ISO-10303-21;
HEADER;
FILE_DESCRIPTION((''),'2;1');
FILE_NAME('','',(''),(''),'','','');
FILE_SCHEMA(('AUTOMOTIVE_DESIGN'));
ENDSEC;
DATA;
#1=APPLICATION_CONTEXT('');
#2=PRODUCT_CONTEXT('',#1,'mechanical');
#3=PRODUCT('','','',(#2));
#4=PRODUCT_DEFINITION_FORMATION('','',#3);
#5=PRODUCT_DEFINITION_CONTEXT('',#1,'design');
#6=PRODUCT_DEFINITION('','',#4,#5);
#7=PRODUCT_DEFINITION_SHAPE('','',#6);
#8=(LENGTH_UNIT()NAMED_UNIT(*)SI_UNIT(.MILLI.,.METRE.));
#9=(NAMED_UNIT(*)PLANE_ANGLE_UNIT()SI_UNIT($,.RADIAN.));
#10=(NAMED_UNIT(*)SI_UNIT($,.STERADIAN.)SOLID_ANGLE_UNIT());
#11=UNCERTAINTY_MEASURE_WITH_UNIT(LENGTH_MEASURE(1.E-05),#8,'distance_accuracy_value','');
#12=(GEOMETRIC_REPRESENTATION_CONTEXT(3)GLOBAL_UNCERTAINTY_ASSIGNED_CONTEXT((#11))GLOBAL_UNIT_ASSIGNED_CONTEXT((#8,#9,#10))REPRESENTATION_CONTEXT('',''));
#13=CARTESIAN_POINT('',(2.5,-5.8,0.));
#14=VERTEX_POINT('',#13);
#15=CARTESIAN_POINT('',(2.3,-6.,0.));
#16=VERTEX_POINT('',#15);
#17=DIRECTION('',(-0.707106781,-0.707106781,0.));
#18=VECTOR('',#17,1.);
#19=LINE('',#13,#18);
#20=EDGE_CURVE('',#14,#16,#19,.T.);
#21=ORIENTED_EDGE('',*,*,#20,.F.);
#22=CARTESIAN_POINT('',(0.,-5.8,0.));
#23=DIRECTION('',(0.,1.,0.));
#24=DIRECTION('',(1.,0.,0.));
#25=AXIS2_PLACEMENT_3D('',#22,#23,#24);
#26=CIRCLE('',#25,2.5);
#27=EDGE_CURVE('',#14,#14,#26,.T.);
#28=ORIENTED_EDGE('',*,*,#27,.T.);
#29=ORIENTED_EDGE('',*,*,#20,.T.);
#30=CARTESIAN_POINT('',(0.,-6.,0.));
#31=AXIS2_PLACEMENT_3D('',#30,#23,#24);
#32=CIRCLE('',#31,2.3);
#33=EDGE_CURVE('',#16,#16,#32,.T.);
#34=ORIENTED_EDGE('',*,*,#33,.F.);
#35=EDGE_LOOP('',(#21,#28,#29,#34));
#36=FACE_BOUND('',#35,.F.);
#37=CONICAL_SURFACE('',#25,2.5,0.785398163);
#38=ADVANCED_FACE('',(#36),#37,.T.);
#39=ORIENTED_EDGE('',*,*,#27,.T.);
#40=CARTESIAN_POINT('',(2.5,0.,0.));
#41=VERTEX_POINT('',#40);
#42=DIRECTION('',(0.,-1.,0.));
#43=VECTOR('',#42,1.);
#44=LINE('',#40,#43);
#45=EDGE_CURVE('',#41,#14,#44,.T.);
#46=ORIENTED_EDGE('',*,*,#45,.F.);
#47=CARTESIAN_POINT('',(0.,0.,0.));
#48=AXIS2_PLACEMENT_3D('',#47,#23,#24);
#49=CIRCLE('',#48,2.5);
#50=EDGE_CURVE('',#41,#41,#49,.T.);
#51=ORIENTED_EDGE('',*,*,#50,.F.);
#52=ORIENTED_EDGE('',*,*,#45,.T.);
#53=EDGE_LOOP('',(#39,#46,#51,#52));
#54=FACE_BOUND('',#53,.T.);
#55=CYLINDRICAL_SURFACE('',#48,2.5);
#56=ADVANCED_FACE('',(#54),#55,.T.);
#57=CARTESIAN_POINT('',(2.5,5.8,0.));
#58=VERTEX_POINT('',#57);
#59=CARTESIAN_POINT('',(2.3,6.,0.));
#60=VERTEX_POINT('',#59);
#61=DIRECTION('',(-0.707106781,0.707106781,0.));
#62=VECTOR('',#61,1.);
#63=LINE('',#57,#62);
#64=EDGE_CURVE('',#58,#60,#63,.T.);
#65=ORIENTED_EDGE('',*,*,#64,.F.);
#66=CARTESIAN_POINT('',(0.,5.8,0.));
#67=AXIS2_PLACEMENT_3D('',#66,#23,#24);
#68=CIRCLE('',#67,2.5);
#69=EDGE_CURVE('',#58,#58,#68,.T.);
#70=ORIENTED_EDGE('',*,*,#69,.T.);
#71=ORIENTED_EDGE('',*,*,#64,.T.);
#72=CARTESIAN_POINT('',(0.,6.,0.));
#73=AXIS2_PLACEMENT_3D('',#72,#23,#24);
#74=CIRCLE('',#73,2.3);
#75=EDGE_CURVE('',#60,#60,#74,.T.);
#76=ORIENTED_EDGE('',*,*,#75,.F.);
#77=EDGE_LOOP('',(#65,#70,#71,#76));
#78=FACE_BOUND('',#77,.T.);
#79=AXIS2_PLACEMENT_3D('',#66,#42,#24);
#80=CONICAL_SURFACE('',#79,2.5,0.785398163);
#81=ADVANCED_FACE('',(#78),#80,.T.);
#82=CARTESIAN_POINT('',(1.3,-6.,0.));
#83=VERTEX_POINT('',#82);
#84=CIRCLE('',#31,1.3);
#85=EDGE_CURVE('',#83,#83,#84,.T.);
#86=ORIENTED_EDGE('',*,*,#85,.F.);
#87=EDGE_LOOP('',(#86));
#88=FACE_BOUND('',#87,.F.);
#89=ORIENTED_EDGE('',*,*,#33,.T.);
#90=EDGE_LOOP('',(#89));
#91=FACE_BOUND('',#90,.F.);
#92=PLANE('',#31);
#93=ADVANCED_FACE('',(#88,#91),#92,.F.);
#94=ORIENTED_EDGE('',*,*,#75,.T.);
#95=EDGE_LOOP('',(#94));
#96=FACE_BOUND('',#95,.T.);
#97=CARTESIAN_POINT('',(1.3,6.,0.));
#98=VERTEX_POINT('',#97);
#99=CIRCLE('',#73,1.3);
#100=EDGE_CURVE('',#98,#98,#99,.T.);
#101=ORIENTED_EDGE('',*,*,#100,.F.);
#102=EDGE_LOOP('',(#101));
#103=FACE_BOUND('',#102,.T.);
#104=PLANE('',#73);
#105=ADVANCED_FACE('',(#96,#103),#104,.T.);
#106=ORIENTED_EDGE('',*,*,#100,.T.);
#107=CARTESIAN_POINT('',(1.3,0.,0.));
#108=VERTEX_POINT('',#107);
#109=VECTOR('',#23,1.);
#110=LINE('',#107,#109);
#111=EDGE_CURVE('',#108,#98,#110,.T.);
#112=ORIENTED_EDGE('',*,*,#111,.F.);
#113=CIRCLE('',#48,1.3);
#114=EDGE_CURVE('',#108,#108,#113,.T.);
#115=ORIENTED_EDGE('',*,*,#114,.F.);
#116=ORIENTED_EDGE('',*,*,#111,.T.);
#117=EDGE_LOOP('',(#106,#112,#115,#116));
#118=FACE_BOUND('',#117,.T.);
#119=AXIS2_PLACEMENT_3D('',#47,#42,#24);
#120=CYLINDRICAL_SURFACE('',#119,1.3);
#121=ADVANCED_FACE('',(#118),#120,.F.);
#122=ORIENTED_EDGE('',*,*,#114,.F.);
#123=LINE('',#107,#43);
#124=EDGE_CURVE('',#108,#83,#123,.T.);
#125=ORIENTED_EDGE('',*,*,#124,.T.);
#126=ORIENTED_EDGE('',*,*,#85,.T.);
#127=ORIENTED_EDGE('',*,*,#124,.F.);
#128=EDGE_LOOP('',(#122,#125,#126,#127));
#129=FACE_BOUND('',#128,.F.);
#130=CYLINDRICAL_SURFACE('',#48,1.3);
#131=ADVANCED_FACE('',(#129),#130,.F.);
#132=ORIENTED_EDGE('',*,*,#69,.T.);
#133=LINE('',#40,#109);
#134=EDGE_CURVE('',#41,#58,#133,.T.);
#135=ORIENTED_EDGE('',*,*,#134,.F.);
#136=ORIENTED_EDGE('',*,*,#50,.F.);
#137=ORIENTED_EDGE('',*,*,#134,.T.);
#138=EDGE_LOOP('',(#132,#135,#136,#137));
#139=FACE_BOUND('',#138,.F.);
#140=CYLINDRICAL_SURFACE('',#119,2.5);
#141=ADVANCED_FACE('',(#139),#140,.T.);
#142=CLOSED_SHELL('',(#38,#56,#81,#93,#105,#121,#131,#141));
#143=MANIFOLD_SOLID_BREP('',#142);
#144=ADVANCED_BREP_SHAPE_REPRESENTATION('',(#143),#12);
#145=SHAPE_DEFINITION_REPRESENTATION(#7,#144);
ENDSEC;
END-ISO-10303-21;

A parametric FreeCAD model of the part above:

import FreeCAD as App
import Part
import Sketcher
Q = App.Units.Quantity


def edges_at(feature, points):
    """Names of the edges that pass closest to the given points."""
    edges = feature.Shape.Edges
    near = lambda p: min(range(len(edges)), key=lambda i: edges[i].distToShape(Part.Vertex(*p))[0])
    return sorted({f"Edge{near(p) + 1}" for p in points})

doc = App.newDocument("Part")
params = doc.addObject("Spreadsheet::Sheet", "Params")
for row, (alias, value) in enumerate([
    ("sketch1_diameter", "5 mm"),
    ("sketch1_diameter2", "2.6 mm"),
    ("pad1_length", "12 mm"),
    ("chamfer_size", "0.2 mm"),
], start=1):
    params.set(f"A{row}", alias)
    params.set(f"B{row}", "=" + value)
    params.setAlias(f"B{row}", alias)

body = doc.addObject("PartDesign::Body", "Body")

sketch1 = body.newObject("Sketcher::SketchObject", "Sketch")
sketch1.AttachmentSupport = (doc.getObject("XZ_Plane"), [""])
sketch1.MapMode = "FlatFace"
sketch1.addGeometry(Part.Circle(App.Vector(0, 0, 0), App.Vector(0, 0, 1), 2.5), False)
sketch1.addGeometry(Part.Circle(App.Vector(0, 0, 0), App.Vector(0, 0, 1), 1.3), False)
sketch1.addConstraint(Sketcher.Constraint("Coincident", 0, 3, -1, 1))
sketch1.addConstraint(Sketcher.Constraint("Coincident", 1, 3, -1, 1))
sketch1.addConstraint(Sketcher.Constraint("Diameter", 0, Q("5 mm")))
sketch1.addConstraint(Sketcher.Constraint("Diameter", 1, Q("2.6 mm")))
sketch1.setExpression("Constraints[2]", "Params.sketch1_diameter")
sketch1.setExpression("Constraints[3]", "Params.sketch1_diameter2")
pad1 = body.newObject("PartDesign::Pad", "Pad")
pad1.Profile = sketch1
pad1.setExpression("Length", "Params.pad1_length")
pad1.Midplane = True
doc.recompute()

chamfer = body.newObject("PartDesign::Chamfer", "Chamfer")
chamfer.Base = (pad1, edges_at(pad1, [(-2.5, 6, 0), (-2.5, -6, 0)]))
chamfer.setExpression("Size", "Params.chamfer_size")

doc.recompute()
